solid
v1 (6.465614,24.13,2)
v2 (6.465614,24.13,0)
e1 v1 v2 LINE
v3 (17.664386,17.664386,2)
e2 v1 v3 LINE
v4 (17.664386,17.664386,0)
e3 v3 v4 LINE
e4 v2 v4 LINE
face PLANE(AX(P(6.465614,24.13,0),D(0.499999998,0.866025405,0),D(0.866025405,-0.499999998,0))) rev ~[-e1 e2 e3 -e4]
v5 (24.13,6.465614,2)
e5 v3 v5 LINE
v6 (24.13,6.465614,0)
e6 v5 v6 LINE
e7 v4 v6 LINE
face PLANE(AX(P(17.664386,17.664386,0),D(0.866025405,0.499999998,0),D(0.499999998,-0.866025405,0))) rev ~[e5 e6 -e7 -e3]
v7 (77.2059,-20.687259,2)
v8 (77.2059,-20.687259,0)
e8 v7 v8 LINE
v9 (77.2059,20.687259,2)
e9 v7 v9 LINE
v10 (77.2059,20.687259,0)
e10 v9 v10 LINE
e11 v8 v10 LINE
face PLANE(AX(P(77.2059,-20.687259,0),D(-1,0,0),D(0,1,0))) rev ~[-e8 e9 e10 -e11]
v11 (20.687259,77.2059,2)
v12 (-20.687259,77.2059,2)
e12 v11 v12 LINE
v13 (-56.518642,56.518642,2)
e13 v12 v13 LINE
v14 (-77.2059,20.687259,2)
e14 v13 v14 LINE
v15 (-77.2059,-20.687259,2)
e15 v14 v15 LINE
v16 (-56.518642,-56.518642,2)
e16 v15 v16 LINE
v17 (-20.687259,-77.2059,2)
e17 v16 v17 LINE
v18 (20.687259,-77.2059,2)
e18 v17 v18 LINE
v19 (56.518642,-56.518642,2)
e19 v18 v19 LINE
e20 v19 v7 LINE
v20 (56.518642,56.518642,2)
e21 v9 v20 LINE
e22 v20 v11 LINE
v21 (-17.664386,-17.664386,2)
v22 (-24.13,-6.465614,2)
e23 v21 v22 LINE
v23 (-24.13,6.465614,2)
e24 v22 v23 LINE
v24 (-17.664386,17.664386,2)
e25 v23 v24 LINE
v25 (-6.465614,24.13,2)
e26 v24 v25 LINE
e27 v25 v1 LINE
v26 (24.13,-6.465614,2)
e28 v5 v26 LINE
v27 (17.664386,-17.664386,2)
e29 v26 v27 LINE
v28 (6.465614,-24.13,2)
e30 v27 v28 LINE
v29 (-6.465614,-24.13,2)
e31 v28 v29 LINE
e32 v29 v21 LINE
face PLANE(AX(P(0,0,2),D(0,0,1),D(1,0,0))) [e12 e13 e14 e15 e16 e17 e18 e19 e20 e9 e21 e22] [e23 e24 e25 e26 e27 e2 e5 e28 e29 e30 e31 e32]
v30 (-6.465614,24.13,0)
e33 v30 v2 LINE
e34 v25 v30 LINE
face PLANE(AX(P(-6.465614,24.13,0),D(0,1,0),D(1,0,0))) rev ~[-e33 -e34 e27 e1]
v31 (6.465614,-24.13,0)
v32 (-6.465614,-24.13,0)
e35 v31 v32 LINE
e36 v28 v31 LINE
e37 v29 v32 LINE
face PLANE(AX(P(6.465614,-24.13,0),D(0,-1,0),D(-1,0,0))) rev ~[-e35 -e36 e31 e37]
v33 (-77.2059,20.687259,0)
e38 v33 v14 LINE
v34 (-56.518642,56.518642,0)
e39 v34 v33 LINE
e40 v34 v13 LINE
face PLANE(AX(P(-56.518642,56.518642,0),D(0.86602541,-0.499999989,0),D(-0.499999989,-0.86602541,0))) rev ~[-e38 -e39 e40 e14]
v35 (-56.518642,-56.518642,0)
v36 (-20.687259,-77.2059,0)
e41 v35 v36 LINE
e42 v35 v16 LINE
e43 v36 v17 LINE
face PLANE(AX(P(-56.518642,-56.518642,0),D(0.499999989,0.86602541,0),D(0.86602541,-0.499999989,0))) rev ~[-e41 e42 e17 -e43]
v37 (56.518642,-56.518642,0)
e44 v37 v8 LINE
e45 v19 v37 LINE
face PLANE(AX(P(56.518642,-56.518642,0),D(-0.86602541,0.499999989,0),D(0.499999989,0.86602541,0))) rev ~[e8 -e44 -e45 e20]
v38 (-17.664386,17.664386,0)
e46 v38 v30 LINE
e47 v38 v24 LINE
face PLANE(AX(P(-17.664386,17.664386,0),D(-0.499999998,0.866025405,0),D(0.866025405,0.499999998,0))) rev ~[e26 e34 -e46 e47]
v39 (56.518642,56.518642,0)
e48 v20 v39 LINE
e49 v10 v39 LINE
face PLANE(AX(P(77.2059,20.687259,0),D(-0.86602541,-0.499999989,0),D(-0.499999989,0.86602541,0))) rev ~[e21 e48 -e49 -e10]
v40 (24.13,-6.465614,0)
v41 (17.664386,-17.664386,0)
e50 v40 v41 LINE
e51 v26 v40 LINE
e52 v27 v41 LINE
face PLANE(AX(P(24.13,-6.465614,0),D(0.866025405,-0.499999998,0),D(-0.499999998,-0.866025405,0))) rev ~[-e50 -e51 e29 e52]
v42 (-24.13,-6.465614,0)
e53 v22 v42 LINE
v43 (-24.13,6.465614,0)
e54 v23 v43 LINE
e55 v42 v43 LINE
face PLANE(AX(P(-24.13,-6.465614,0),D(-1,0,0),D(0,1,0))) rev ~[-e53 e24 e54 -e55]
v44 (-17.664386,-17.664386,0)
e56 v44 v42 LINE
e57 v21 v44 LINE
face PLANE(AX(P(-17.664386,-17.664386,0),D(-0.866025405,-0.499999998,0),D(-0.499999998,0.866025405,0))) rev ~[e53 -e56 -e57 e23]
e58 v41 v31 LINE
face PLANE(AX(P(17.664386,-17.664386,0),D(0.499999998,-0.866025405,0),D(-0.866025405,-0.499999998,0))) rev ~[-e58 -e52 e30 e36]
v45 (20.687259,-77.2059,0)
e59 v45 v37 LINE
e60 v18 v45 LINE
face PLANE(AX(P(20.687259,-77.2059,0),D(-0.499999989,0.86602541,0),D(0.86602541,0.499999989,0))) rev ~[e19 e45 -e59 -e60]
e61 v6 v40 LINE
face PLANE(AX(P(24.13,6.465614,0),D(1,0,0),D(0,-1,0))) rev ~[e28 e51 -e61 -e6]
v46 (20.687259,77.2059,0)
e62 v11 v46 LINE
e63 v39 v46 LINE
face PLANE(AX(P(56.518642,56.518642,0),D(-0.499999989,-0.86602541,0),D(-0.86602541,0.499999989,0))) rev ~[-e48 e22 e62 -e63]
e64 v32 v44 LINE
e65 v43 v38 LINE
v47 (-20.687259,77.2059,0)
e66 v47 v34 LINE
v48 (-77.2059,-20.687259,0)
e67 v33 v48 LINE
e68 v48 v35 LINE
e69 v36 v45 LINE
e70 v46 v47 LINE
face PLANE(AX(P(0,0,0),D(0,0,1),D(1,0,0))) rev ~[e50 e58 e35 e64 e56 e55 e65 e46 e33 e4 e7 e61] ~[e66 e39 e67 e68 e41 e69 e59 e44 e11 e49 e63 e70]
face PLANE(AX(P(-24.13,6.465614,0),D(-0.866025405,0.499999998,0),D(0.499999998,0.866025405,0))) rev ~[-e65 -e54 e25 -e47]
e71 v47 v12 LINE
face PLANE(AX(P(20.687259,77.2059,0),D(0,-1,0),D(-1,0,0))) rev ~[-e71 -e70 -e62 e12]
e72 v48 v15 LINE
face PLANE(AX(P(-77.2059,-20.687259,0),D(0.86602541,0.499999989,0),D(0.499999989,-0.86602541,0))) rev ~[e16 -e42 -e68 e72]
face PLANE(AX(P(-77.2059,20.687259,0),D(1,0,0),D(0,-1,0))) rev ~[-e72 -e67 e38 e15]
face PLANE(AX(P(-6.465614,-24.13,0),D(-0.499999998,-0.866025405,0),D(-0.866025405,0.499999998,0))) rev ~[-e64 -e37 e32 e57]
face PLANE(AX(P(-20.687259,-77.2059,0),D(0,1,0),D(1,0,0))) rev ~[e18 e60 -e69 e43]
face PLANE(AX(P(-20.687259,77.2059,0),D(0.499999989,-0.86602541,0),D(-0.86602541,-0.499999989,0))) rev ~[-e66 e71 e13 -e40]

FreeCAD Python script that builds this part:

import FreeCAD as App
import Part
import Sketcher
Q = App.Units.Quantity

doc = App.newDocument("Part")
body = doc.addObject("PartDesign::Body", "Body")

# Sketch on XY plane
sketch1 = doc.addObject("Sketcher::SketchObject", "Sketch")
body.addObject(sketch1)
sketch1.AttachmentSupport = (doc.XY_Plane, [""])
sketch1.MapMode = "FlatFace"
sketch1.addGeometry(Part.LineSegment(App.Vector(21, 77, 0), App.Vector(-21, 77, 0)), False)
sketch1.addGeometry(Part.LineSegment(App.Vector(-21, 77, 0), App.Vector(-57, 57, 0)), False)
sketch1.addGeometry(Part.LineSegment(App.Vector(-57, 57, 0), App.Vector(-77, 21, 0)), False)
sketch1.addGeometry(Part.LineSegment(App.Vector(-77, 21, 0), App.Vector(-77, -21, 0)), False)
sketch1.addGeometry(Part.LineSegment(App.Vector(-77, -21, 0), App.Vector(-57, -57, 0)), False)
sketch1.addGeometry(Part.LineSegment(App.Vector(-57, -57, 0), App.Vector(-21, -77, 0)), False)
sketch1.addGeometry(Part.LineSegment(App.Vector(-21, -77, 0), App.Vector(21, -77, 0)), False)
sketch1.addGeometry(Part.LineSegment(App.Vector(21, -77, 0), App.Vector(57, -57, 0)), False)
sketch1.addGeometry(Part.LineSegment(App.Vector(57, -57, 0), App.Vector(77, -21, 0)), False)
sketch1.addGeometry(Part.LineSegment(App.Vector(77, -21, 0), App.Vector(77, 21, 0)), False)
sketch1.addGeometry(Part.LineSegment(App.Vector(77, 21, 0), App.Vector(57, 57, 0)), False)
sketch1.addGeometry(Part.LineSegment(App.Vector(57, 57, 0), App.Vector(21, 77, 0)), False)
sketch1.addGeometry(Part.LineSegment(App.Vector(-24, 6, 0), App.Vector(-18, 18, 0)), False)
sketch1.addGeometry(Part.LineSegment(App.Vector(-18, 18, 0), App.Vector(-6, 24, 0)), False)
sketch1.addGeometry(Part.LineSegment(App.Vector(-6, 24, 0), App.Vector(6, 24, 0)), False)
sketch1.addGeometry(Part.LineSegment(App.Vector(6, 24, 0), App.Vector(18, 18, 0)), False)
sketch1.addGeometry(Part.LineSegment(App.Vector(18, 18, 0), App.Vector(24, 6, 0)), False)
sketch1.addGeometry(Part.LineSegment(App.Vector(24, 6, 0), App.Vector(24, -6, 0)), False)
sketch1.addGeometry(Part.LineSegment(App.Vector(24, -6, 0), App.Vector(18, -18, 0)), False)
sketch1.addGeometry(Part.LineSegment(App.Vector(18, -18, 0), App.Vector(6, -24, 0)), False)
sketch1.addGeometry(Part.LineSegment(App.Vector(6, -24, 0), App.Vector(-6, -24, 0)), False)
sketch1.addGeometry(Part.LineSegment(App.Vector(-6, -24, 0), App.Vector(-18, -18, 0)), False)
sketch1.addGeometry(Part.LineSegment(App.Vector(-18, -18, 0), App.Vector(-24, -6, 0)), False)
sketch1.addGeometry(Part.LineSegment(App.Vector(-24, -6, 0), App.Vector(-24, 6, 0)), False)
sketch1.addConstraint(Sketcher.Constraint("Coincident", 0, 2, 1, 1))
sketch1.addConstraint(Sketcher.Constraint("Coincident", 1, 2, 2, 1))
sketch1.addConstraint(Sketcher.Constraint("Coincident", 2, 2, 3, 1))
sketch1.addConstraint(Sketcher.Constraint("Coincident", 3, 2, 4, 1))
sketch1.addConstraint(Sketcher.Constraint("Coincident", 4, 2, 5, 1))
sketch1.addConstraint(Sketcher.Constraint("Coincident", 5, 2, 6, 1))
sketch1.addConstraint(Sketcher.Constraint("Coincident", 6, 2, 7, 1))
sketch1.addConstraint(Sketcher.Constraint("Coincident", 7, 2, 8, 1))
sketch1.addConstraint(Sketcher.Constraint("Coincident", 8, 2, 9, 1))
sketch1.addConstraint(Sketcher.Constraint("Coincident", 9, 2, 10, 1))
sketch1.addConstraint(Sketcher.Constraint("Coincident", 10, 2, 11, 1))
sketch1.addConstraint(Sketcher.Constraint("Coincident", 11, 2, 0, 1))
sketch1.addConstraint(Sketcher.Constraint("Coincident", 12, 2, 13, 1))
sketch1.addConstraint(Sketcher.Constraint("Coincident", 13, 2, 14, 1))
sketch1.addConstraint(Sketcher.Constraint("Coincident", 14, 2, 15, 1))
sketch1.addConstraint(Sketcher.Constraint("Coincident", 15, 2, 16, 1))
sketch1.addConstraint(Sketcher.Constraint("Coincident", 16, 2, 17, 1))
sketch1.addConstraint(Sketcher.Constraint("Coincident", 17, 2, 18, 1))
sketch1.addConstraint(Sketcher.Constraint("Coincident", 18, 2, 19, 1))
sketch1.addConstraint(Sketcher.Constraint("Coincident", 19, 2, 20, 1))
sketch1.addConstraint(Sketcher.Constraint("Coincident", 20, 2, 21, 1))
sketch1.addConstraint(Sketcher.Constraint("Coincident", 21, 2, 22, 1))
sketch1.addConstraint(Sketcher.Constraint("Coincident", 22, 2, 23, 1))
sketch1.addConstraint(Sketcher.Constraint("Coincident", 23, 2, 12, 1))
sketch1.addConstraint(Sketcher.Constraint("Horizontal", 0))
sketch1.addConstraint(Sketcher.Constraint("Vertical", 3))
sketch1.addConstraint(Sketcher.Constraint("Horizontal", 6))
sketch1.addConstraint(Sketcher.Constraint("Vertical", 9))
sketch1.addConstraint(Sketcher.Constraint("Horizontal", 14))
sketch1.addConstraint(Sketcher.Constraint("Vertical", 17))
sketch1.addConstraint(Sketcher.Constraint("Horizontal", 20))
sketch1.addConstraint(Sketcher.Constraint("Vertical", 23))
sketch1.addConstraint(Sketcher.Constraint("Symmetric", 0, 2, 6, 2, -1, 1))
sketch1.addConstraint(Sketcher.Constraint("Symmetric", 1, 2, 7, 2, -1, 1))
sketch1.addConstraint(Sketcher.Constraint("Symmetric", 2, 2, 8, 2, -1, 1))
sketch1.addConstraint(Sketcher.Constraint("Symmetric", 4, 2, 10, 2, -1, 1))
sketch1.addConstraint(Sketcher.Constraint("Symmetric", 12, 2, 18, 2, -1, 1))
sketch1.addConstraint(Sketcher.Constraint("Symmetric", 13, 2, 19, 2, -1, 1))
sketch1.addConstraint(Sketcher.Constraint("Symmetric", 15, 2, 21, 2, -1, 1))
sketch1.addConstraint(Sketcher.Constraint("Symmetric", 16, 2, 22, 2, -1, 1))
sketch1.addConstraint(Sketcher.Constraint("Symmetric", 4, 2, 7, 2, -2))
sketch1.addConstraint(Sketcher.Constraint("Symmetric", 12, 2, 15, 2, -2))
sketch1.addConstraint(Sketcher.Constraint("Perpendicular", 1, 4))
sketch1.addConstraint(Sketcher.Constraint("Perpendicular", 2, 5))
sketch1.addConstraint(Sketcher.Constraint("Perpendicular", 7, 10))
sketch1.addConstraint(Sketcher.Constraint("Perpendicular", 8, 11))
sketch1.addConstraint(Sketcher.Constraint("Perpendicular", 11, 12))
sketch1.addConstraint(Sketcher.Constraint("Perpendicular", 10, 13))
sketch1.addConstraint(Sketcher.Constraint("Perpendicular", 12, 15))
sketch1.addConstraint(Sketcher.Constraint("Perpendicular", 13, 16))
sketch1.addConstraint(Sketcher.Constraint("Perpendicular", 15, 18))
sketch1.addConstraint(Sketcher.Constraint("Perpendicular", 18, 21))
sketch1.addConstraint(Sketcher.Constraint("Horizontal", 3, 2, 8, 2))
sketch1.addConstraint(Sketcher.Constraint("Equal", 6, 3))
sketch1.addConstraint(Sketcher.Constraint("Equal", 20, 17))
sketch1.addConstraint(Sketcher.Constraint("Equal", 1, 2))
sketch1.addConstraint(Sketcher.Constraint("Equal", 12, 13))
sketch1.addConstraint(Sketcher.Constraint("Angle", 1, Q("-150.000001 deg")))
sketch1.addConstraint(Sketcher.Constraint("DistanceY", -1, 1, 13, 2, 24.13))
sketch1.addConstraint(Sketcher.Constraint("DistanceX", 12, 2, 14, 2, 24.13))
sketch1.addConstraint(Sketcher.Constraint("DistanceX", 0, 2, 0, 1, 41.374518))
sketch1.addConstraint(Sketcher.Constraint("DistanceY", -1, 1, 0, 2, 77.2059))
pad1 = doc.addObject("PartDesign::Pad", "Pad")
body.addObject(pad1)
pad1.Profile = sketch1
pad1.Length = 1.5875

# Sketch on XY plane
sketch2 = doc.addObject("Sketcher::SketchObject", "Sketch001")
body.addObject(sketch2)
sketch2.AttachmentSupport = (doc.XY_Plane, [""])
sketch2.MapMode = "FlatFace"
sketch2.addGeometry(Part.LineSegment(App.Vector(21, 77, 0), App.Vector(-21, 77, 0)), False)
sketch2.addGeometry(Part.LineSegment(App.Vector(-21, 77, 0), App.Vector(-57, 57, 0)), False)
sketch2.addGeometry(Part.LineSegment(App.Vector(-57, 57, 0), App.Vector(-77, 21, 0)), False)
sketch2.addGeometry(Part.LineSegment(App.Vector(-77, 21, 0), App.Vector(-77, -21, 0)), False)
sketch2.addGeometry(Part.LineSegment(App.Vector(-77, -21, 0), App.Vector(-57, -57, 0)), False)
sketch2.addGeometry(Part.LineSegment(App.Vector(-57, -57, 0), App.Vector(-21, -77, 0)), False)
sketch2.addGeometry(Part.LineSegment(App.Vector(-21, -77, 0), App.Vector(21, -77, 0)), False)
sketch2.addGeometry(Part.LineSegment(App.Vector(21, -77, 0), App.Vector(57, -57, 0)), False)
sketch2.addGeometry(Part.LineSegment(App.Vector(57, -57, 0), App.Vector(77, -21, 0)), False)
sketch2.addGeometry(Part.LineSegment(App.Vector(77, -21, 0), App.Vector(77, 21, 0)), False)
sketch2.addGeometry(Part.LineSegment(App.Vector(77, 21, 0), App.Vector(57, 57, 0)), False)
sketch2.addGeometry(Part.LineSegment(App.Vector(57, 57, 0), App.Vector(21, 77, 0)), False)
sketch2.addGeometry(Part.LineSegment(App.Vector(-24, 6, 0), App.Vector(-18, 18, 0)), False)
sketch2.addGeometry(Part.LineSegment(App.Vector(-18, 18, 0), App.Vector(-6, 24, 0)), False)
sketch2.addGeometry(Part.LineSegment(App.Vector(-6, 24, 0), App.Vector(6, 24, 0)), False)
sketch2.addGeometry(Part.LineSegment(App.Vector(6, 24, 0), App.Vector(18, 18, 0)), False)
sketch2.addGeometry(Part.LineSegment(App.Vector(18, 18, 0), App.Vector(24, 6, 0)), False)
sketch2.addGeometry(Part.LineSegment(App.Vector(24, 6, 0), App.Vector(24, -6, 0)), False)
sketch2.addGeometry(Part.LineSegment(App.Vector(24, -6, 0), App.Vector(18, -18, 0)), False)
sketch2.addGeometry(Part.LineSegment(App.Vector(18, -18, 0), App.Vector(6, -24, 0)), False)
sketch2.addGeometry(Part.LineSegment(App.Vector(6, -24, 0), App.Vector(-6, -24, 0)), False)
sketch2.addGeometry(Part.LineSegment(App.Vector(-6, -24, 0), App.Vector(-18, -18, 0)), False)
sketch2.addGeometry(Part.LineSegment(App.Vector(-18, -18, 0), App.Vector(-24, -6, 0)), False)
sketch2.addGeometry(Part.LineSegment(App.Vector(-24, -6, 0), App.Vector(-24, 6, 0)), False)
sketch2.addConstraint(Sketcher.Constraint("Coincident", 0, 2, 1, 1))
sketch2.addConstraint(Sketcher.Constraint("Coincident", 1, 2, 2, 1))
sketch2.addConstraint(Sketcher.Constraint("Coincident", 2, 2, 3, 1))
sketch2.addConstraint(Sketcher.Constraint("Coincident", 3, 2, 4, 1))
sketch2.addConstraint(Sketcher.Constraint("Coincident", 4, 2, 5, 1))
sketch2.addConstraint(Sketcher.Constraint("Coincident", 5, 2, 6, 1))
sketch2.addConstraint(Sketcher.Constraint("Coincident", 6, 2, 7, 1))
sketch2.addConstraint(Sketcher.Constraint("Coincident", 7, 2, 8, 1))
sketch2.addConstraint(Sketcher.Constraint("Coincident", 8, 2, 9, 1))
sketch2.addConstraint(Sketcher.Constraint("Coincident", 9, 2, 10, 1))
sketch2.addConstraint(Sketcher.Constraint("Coincident", 10, 2, 11, 1))
sketch2.addConstraint(Sketcher.Constraint("Coincident", 11, 2, 0, 1))
sketch2.addConstraint(Sketcher.Constraint("Coincident", 12, 2, 13, 1))
sketch2.addConstraint(Sketcher.Constraint("Coincident", 13, 2, 14, 1))
sketch2.addConstraint(Sketcher.Constraint("Coincident", 14, 2, 15, 1))
sketch2.addConstraint(Sketcher.Constraint("Coincident", 15, 2, 16, 1))
sketch2.addConstraint(Sketcher.Constraint("Coincident", 16, 2, 17, 1))
sketch2.addConstraint(Sketcher.Constraint("Coincident", 17, 2, 18, 1))
sketch2.addConstraint(Sketcher.Constraint("Coincident", 18, 2, 19, 1))
sketch2.addConstraint(Sketcher.Constraint("Coincident", 19, 2, 20, 1))
sketch2.addConstraint(Sketcher.Constraint("Coincident", 20, 2, 21, 1))
sketch2.addConstraint(Sketcher.Constraint("Coincident", 21, 2, 22, 1))
sketch2.addConstraint(Sketcher.Constraint("Coincident", 22, 2, 23, 1))
sketch2.addConstraint(Sketcher.Constraint("Coincident", 23, 2, 12, 1))
sketch2.addConstraint(Sketcher.Constraint("Horizontal", 0))
sketch2.addConstraint(Sketcher.Constraint("Vertical", 3))
sketch2.addConstraint(Sketcher.Constraint("Horizontal", 6))
sketch2.addConstraint(Sketcher.Constraint("Vertical", 9))
sketch2.addConstraint(Sketcher.Constraint("Horizontal", 14))
sketch2.addConstraint(Sketcher.Constraint("Vertical", 17))
sketch2.addConstraint(Sketcher.Constraint("Horizontal", 20))
sketch2.addConstraint(Sketcher.Constraint("Vertical", 23))
sketch2.addConstraint(Sketcher.Constraint("Symmetric", 0, 2, 6, 2, -1, 1))
sketch2.addConstraint(Sketcher.Constraint("Symmetric", 1, 2, 7, 2, -1, 1))
sketch2.addConstraint(Sketcher.Constraint("Symmetric", 2, 2, 8, 2, -1, 1))
sketch2.addConstraint(Sketcher.Constraint("Symmetric", 4, 2, 10, 2, -1, 1))
sketch2.addConstraint(Sketcher.Constraint("Symmetric", 12, 2, 18, 2, -1, 1))
sketch2.addConstraint(Sketcher.Constraint("Symmetric", 13, 2, 19, 2, -1, 1))
sketch2.addConstraint(Sketcher.Constraint("Symmetric", 15, 2, 21, 2, -1, 1))
sketch2.addConstraint(Sketcher.Constraint("Symmetric", 16, 2, 22, 2, -1, 1))
sketch2.addConstraint(Sketcher.Constraint("Symmetric", 4, 2, 7, 2, -2))
sketch2.addConstraint(Sketcher.Constraint("Symmetric", 12, 2, 15, 2, -2))
sketch2.addConstraint(Sketcher.Constraint("Perpendicular", 1, 4))
sketch2.addConstraint(Sketcher.Constraint("Perpendicular", 2, 5))
sketch2.addConstraint(Sketcher.Constraint("Perpendicular", 7, 10))
sketch2.addConstraint(Sketcher.Constraint("Perpendicular", 8, 11))
sketch2.addConstraint(Sketcher.Constraint("Perpendicular", 11, 12))
sketch2.addConstraint(Sketcher.Constraint("Perpendicular", 10, 13))
sketch2.addConstraint(Sketcher.Constraint("Perpendicular", 12, 15))
sketch2.addConstraint(Sketcher.Constraint("Perpendicular", 13, 16))
sketch2.addConstraint(Sketcher.Constraint("Perpendicular", 15, 18))
sketch2.addConstraint(Sketcher.Constraint("Perpendicular", 18, 21))
sketch2.addConstraint(Sketcher.Constraint("Horizontal", 3, 2, 8, 2))
sketch2.addConstraint(Sketcher.Constraint("Equal", 6, 3))
sketch2.addConstraint(Sketcher.Constraint("Equal", 20, 17))
sketch2.addConstraint(Sketcher.Constraint("Equal", 1, 2))
sketch2.addConstraint(Sketcher.Constraint("Equal", 12, 13))
sketch2.addConstraint(Sketcher.Constraint("Angle", 1, Q("-150.000001 deg")))
sketch2.addConstraint(Sketcher.Constraint("DistanceY", -1, 1, 13, 2, 24.13))
sketch2.addConstraint(Sketcher.Constraint("DistanceX", 12, 2, 14, 2, 24.13))
sketch2.addConstraint(Sketcher.Constraint("DistanceX", 0, 2, 0, 1, 41.374518))
sketch2.addConstraint(Sketcher.Constraint("DistanceY", -1, 1, 0, 2, 77.2059))
pad2 = doc.addObject("PartDesign::Pad", "Pad001")
body.addObject(pad2)
pad2.Profile = sketch2
pad2.Length = 2

doc.recompute()
